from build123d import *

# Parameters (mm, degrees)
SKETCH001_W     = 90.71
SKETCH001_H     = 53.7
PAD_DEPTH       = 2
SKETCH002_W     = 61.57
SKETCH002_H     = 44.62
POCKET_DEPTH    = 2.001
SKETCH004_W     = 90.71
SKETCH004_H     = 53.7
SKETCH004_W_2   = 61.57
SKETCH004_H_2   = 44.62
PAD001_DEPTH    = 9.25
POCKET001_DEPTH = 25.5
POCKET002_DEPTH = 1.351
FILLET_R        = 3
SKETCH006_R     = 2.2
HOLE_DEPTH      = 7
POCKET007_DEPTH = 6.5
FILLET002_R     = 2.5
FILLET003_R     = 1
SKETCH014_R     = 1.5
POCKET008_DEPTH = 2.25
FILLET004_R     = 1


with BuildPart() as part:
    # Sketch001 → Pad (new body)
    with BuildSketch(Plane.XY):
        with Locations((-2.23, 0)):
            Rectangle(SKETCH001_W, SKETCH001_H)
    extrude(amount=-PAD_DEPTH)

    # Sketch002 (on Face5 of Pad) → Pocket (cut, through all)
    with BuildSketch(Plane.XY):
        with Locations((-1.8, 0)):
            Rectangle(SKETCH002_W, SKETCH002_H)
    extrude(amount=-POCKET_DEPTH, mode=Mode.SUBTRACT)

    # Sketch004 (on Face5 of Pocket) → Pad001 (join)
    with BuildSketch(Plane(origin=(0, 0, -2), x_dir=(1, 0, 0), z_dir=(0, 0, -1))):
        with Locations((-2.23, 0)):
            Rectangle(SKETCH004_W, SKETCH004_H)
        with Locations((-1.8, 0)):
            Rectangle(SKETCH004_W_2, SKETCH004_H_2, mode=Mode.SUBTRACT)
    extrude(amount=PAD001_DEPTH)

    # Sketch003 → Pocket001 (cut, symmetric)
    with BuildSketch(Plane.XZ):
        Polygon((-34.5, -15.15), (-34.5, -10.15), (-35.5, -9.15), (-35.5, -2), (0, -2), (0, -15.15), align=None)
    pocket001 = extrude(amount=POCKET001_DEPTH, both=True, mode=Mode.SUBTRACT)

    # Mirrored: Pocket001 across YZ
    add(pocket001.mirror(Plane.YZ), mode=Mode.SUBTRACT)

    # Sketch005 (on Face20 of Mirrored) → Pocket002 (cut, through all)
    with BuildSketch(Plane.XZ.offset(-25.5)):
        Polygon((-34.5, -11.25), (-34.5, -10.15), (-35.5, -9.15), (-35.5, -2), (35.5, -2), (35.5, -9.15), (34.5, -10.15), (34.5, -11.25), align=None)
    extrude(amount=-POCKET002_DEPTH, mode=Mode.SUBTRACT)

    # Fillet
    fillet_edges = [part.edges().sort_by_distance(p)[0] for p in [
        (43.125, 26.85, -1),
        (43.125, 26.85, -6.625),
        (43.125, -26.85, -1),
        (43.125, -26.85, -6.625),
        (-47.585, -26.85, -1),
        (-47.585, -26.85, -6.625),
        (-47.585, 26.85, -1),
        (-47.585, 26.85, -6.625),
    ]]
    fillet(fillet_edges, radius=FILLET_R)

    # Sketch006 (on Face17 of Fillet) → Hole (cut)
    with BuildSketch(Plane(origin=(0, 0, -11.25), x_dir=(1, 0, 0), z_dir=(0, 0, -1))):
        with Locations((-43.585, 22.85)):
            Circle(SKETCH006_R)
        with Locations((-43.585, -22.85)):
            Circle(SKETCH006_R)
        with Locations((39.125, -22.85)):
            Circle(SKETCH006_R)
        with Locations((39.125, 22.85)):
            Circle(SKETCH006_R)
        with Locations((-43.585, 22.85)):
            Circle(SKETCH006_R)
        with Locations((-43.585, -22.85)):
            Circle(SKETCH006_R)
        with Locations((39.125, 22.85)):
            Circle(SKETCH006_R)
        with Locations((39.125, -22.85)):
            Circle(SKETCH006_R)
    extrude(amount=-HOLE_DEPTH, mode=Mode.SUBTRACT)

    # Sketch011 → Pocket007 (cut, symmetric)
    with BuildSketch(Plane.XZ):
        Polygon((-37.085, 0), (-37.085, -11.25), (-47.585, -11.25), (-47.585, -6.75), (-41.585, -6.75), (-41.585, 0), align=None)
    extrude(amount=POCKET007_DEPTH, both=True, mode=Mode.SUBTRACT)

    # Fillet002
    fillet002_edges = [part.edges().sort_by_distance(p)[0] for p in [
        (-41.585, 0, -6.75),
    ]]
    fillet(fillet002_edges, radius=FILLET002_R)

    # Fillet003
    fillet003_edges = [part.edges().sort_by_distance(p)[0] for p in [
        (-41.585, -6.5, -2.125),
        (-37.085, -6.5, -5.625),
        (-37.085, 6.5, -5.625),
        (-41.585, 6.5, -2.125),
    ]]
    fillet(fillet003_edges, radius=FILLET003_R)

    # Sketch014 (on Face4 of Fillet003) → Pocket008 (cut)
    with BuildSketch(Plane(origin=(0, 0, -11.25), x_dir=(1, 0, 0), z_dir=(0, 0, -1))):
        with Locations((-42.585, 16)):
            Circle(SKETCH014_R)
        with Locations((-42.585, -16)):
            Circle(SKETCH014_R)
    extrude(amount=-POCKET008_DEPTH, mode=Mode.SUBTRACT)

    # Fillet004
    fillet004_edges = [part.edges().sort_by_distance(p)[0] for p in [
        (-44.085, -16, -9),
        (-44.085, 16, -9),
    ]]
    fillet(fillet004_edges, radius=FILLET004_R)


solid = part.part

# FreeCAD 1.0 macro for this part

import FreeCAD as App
import Part
import Sketcher
Q = App.Units.Quantity


def edges_at(feature, points):
    """Names of the edges that pass closest to the given points."""
    edges = feature.Shape.Edges
    near = lambda p: min(range(len(edges)), key=lambda i: edges[i].distToShape(Part.Vertex(*p))[0])
    return sorted({f"Edge{near(p) + 1}" for p in points})

doc = App.newDocument("Part")
body = doc.addObject("PartDesign::Body", "Body")

sketch1 = body.newObject("Sketcher::SketchObject", "Sketch")
sketch1.AttachmentSupport = (doc.getObject("XY_Plane"), [""])
sketch1.MapMode = "FlatFace"
sketch1.addGeometry([
    Part.LineSegment(App.Vector(-48, 27, 0), App.Vector(-48, -27, 0)),
    Part.LineSegment(App.Vector(-48, -27, 0), App.Vector(43, -27, 0)),
    Part.LineSegment(App.Vector(43, -27, 0), App.Vector(43, 27, 0)),
    Part.LineSegment(App.Vector(43, 27, 0), App.Vector(-48, 27, 0)),
], False)
sketch1.addConstraint([
    Sketcher.Constraint("Coincident", 0, 2, 1, 1),
    Sketcher.Constraint("Coincident", 1, 2, 2, 1),
    Sketcher.Constraint("Coincident", 2, 2, 3, 1),
    Sketcher.Constraint("Coincident", 3, 2, 0, 1),
    Sketcher.Constraint("Vertical", 0),
    Sketcher.Constraint("Horizontal", 1),
    Sketcher.Constraint("Vertical", 2),
    Sketcher.Constraint("Horizontal", 3),
    Sketcher.Constraint("DistanceY", 0, 2, 0, 1, Q("53.7 mm")),
    Sketcher.Constraint("DistanceX", 1, 1, 1, 2, Q("90.71 mm")),
    Sketcher.Constraint("DistanceY", 0, 2, -1, 1, Q("26.85 mm")),
    Sketcher.Constraint("DistanceX", 0, 2, -1, 1, Q("47.585 mm")),
])
pad1 = body.newObject("PartDesign::Pad", "Pad")
pad1.Profile = sketch1
pad1.Length = 2
pad1.Reversed = True

sketch2 = body.newObject("Sketcher::SketchObject", "Sketch001")
sketch2.AttachmentSupport = (doc.getObject("XY_Plane"), [""])
sketch2.MapMode = "FlatFace"
sketch2.addGeometry([
    Part.LineSegment(App.Vector(-33, 22, 0), App.Vector(-33, -22, 0)),
    Part.LineSegment(App.Vector(-33, -22, 0), App.Vector(29, -22, 0)),
    Part.LineSegment(App.Vector(29, -22, 0), App.Vector(29, 22, 0)),
    Part.LineSegment(App.Vector(29, 22, 0), App.Vector(-33, 22, 0)),
], False)
sketch2.addConstraint([
    Sketcher.Constraint("Coincident", 0, 2, 1, 1),
    Sketcher.Constraint("Coincident", 1, 2, 2, 1),
    Sketcher.Constraint("Coincident", 2, 2, 3, 1),
    Sketcher.Constraint("Coincident", 3, 2, 0, 1),
    Sketcher.Constraint("Vertical", 0),
    Sketcher.Constraint("Horizontal", 1),
    Sketcher.Constraint("Vertical", 2),
    Sketcher.Constraint("Horizontal", 3),
    Sketcher.Constraint("DistanceX", 1, 1, 1, 2, Q("61.57 mm")),
    Sketcher.Constraint("DistanceY", 0, 2, 0, 1, Q("44.62 mm")),
    Sketcher.Constraint("DistanceY", 0, 2, -1, 1, Q("22.31 mm")),
    Sketcher.Constraint("DistanceX", 0, 2, -1, 1, Q("32.585 mm")),
])
pocket1 = body.newObject("PartDesign::Pocket", "Pocket")
pocket1.Profile = sketch2
pocket1.Type = "ThroughAll"

sketch3 = body.newObject("Sketcher::SketchObject", "Sketch002")
sketch3.AttachmentSupport = (doc.getObject("XY_Plane"), [""])
sketch3.MapMode = "FlatFace"
sketch3.AttachmentOffset = App.Placement(App.Vector(0, 0, -2), App.Rotation())
sketch3.addGeometry([
    Part.LineSegment(App.Vector(-48, -27, 0), App.Vector(-48, 27, 0)),
    Part.LineSegment(App.Vector(-48, 27, 0), App.Vector(43, 27, 0)),
    Part.LineSegment(App.Vector(43, 27, 0), App.Vector(43, -27, 0)),
    Part.LineSegment(App.Vector(43, -27, 0), App.Vector(-48, -27, 0)),
    Part.LineSegment(App.Vector(29, 22, 0), App.Vector(-33, 22, 0)),
    Part.LineSegment(App.Vector(-33, 22, 0), App.Vector(-33, -22, 0)),
    Part.LineSegment(App.Vector(-33, -22, 0), App.Vector(29, -22, 0)),
    Part.LineSegment(App.Vector(29, -22, 0), App.Vector(29, 22, 0)),
], False)
sketch3.addConstraint([
    Sketcher.Constraint("Coincident", 0, 2, 1, 1),
    Sketcher.Constraint("Coincident", 1, 2, 2, 1),
    Sketcher.Constraint("Coincident", 2, 2, 3, 1),
    Sketcher.Constraint("Coincident", 3, 2, 0, 1),
    Sketcher.Constraint("Coincident", 4, 2, 5, 1),
    Sketcher.Constraint("Coincident", 5, 2, 6, 1),
    Sketcher.Constraint("Coincident", 6, 2, 7, 1),
    Sketcher.Constraint("Coincident", 7, 2, 4, 1),
    Sketcher.Constraint("Vertical", 0),
    Sketcher.Constraint("Horizontal", 1),
    Sketcher.Constraint("Vertical", 2),
    Sketcher.Constraint("Horizontal", 3),
    Sketcher.Constraint("Horizontal", 4),
    Sketcher.Constraint("Vertical", 5),
    Sketcher.Constraint("Horizontal", 6),
    Sketcher.Constraint("Vertical", 7),
    Sketcher.Constraint("DistanceY", 0, 1, 0, 2, Q("53.7 mm")),
    Sketcher.Constraint("DistanceX", 0, 2, 4, 2, Q("15 mm")),
    Sketcher.Constraint("DistanceX", 1, 1, 1, 2, Q("90.71 mm")),
    Sketcher.Constraint("DistanceX", 4, 2, 4, 1, Q("61.57 mm")),
    Sketcher.Constraint("DistanceY", 5, 2, 5, 1, Q("44.62 mm")),
    Sketcher.Constraint("DistanceY", -1, 1, 0, 2, Q("26.85 mm")),
    Sketcher.Constraint("DistanceY", -1, 1, 4, 2, Q("22.31 mm")),
    Sketcher.Constraint("DistanceX", 0, 2, -1, 1, Q("47.585 mm")),
])
pad2 = body.newObject("PartDesign::Pad", "Pad001")
pad2.Profile = sketch3
pad2.Length = 9.25
pad2.Reversed = True

sketch4 = body.newObject("Sketcher::SketchObject", "Sketch003")
sketch4.AttachmentSupport = (doc.getObject("XZ_Plane"), [""])
sketch4.MapMode = "FlatFace"
sketch4.addGeometry([
    Part.LineSegment(App.Vector(-34.5, -10.2, 0), App.Vector(-34.5, -15.2, 0)),
    Part.LineSegment(App.Vector(-34.5, -15.2, 0), App.Vector(0, -15.2, 0)),
    Part.LineSegment(App.Vector(0, -15.2, 0), App.Vector(0, -2, 0)),
    Part.LineSegment(App.Vector(0, -2, 0), App.Vector(-35.5, -2, 0)),
    Part.LineSegment(App.Vector(-35.5, -2, 0), App.Vector(-35.5, -9.2, 0)),
    Part.LineSegment(App.Vector(-35.5, -9.2, 0), App.Vector(-34.5, -10.2, 0)),
], False)
sketch4.addConstraint([
    Sketcher.Constraint("Coincident", 0, 2, 1, 1),
    Sketcher.Constraint("Coincident", 1, 2, 2, 1),
    Sketcher.Constraint("Coincident", 2, 2, 3, 1),
    Sketcher.Constraint("Coincident", 3, 2, 4, 1),
    Sketcher.Constraint("Coincident", 4, 2, 5, 1),
    Sketcher.Constraint("Coincident", 5, 2, 0, 1),
    Sketcher.Constraint("Vertical", 0),
    Sketcher.Constraint("Horizontal", 1),
    Sketcher.Constraint("Vertical", 2),
    Sketcher.Constraint("Horizontal", 3),
    Sketcher.Constraint("Vertical", 4),
    Sketcher.Constraint("PointOnObject", 1, 2, -2),
    Sketcher.Constraint("DistanceY", 0, 2, 0, 1, Q("5 mm")),
    Sketcher.Constraint("Angle", 5, Q("-45 deg")),
    Sketcher.Constraint("DistanceX", 1, 1, 1, 2, Q("34.5 mm")),
    Sketcher.Constraint("DistanceX", 3, 2, 3, 1, Q("35.5 mm")),
    Sketcher.Constraint("DistanceY", 2, 2, -1, 1, Q("2 mm")),
    Sketcher.Constraint("DistanceY", 2, 1, 2, 2, Q("13.15 mm")),
])
pocket2 = body.newObject("PartDesign::Pocket", "Pocket001")
pocket2.Profile = sketch4
pocket2.Length = 51
pocket2.Midplane = True
doc.recompute()

mirrored = body.newObject("PartDesign::Mirrored", "Mirrored")
mirrored.Originals = [pocket2]
mirrored.MirrorPlane = (doc.getObject("YZ_Plane"), [""])
body.Tip = mirrored

sketch5 = body.newObject("Sketcher::SketchObject", "Sketch004")
sketch5.AttachmentSupport = (doc.getObject("XZ_Plane"), [""])
sketch5.MapMode = "FlatFace"
sketch5.AttachmentOffset = App.Placement(App.Vector(0, 0, -25.5), App.Rotation())
sketch5.addGeometry([
    Part.LineSegment(App.Vector(-34.5, -10.2, 0), App.Vector(-34.5, -11.2, 0)),
    Part.LineSegment(App.Vector(-34.5, -11.2, 0), App.Vector(34.5, -11.2, 0)),
    Part.LineSegment(App.Vector(34.5, -11.2, 0), App.Vector(34.5, -10.2, 0)),
    Part.LineSegment(App.Vector(34.5, -10.2, 0), App.Vector(35.5, -9.2, 0)),
    Part.LineSegment(App.Vector(35.5, -9.2, 0), App.Vector(35.5, -2, 0)),
    Part.LineSegment(App.Vector(35.5, -2, 0), App.Vector(-35.5, -2, 0)),
    Part.LineSegment(App.Vector(-35.5, -2, 0), App.Vector(-35.5, -9.2, 0)),
    Part.LineSegment(App.Vector(-35.5, -9.2, 0), App.Vector(-34.5, -10.2, 0)),
], False)
sketch5.addConstraint([
    Sketcher.Constraint("Coincident", 0, 2, 1, 1),
    Sketcher.Constraint("Coincident", 1, 2, 2, 1),
    Sketcher.Constraint("Coincident", 2, 2, 3, 1),
    Sketcher.Constraint("Coincident", 3, 2, 4, 1),
    Sketcher.Constraint("Coincident", 4, 2, 5, 1),
    Sketcher.Constraint("Coincident", 5, 2, 6, 1),
    Sketcher.Constraint("Coincident", 6, 2, 7, 1),
    Sketcher.Constraint("Coincident", 7, 2, 0, 1),
    Sketcher.Constraint("Vertical", 0),
    Sketcher.Constraint("Horizontal", 1),
    Sketcher.Constraint("Vertical", 2),
    Sketcher.Constraint("Vertical", 4),
    Sketcher.Constraint("Horizontal", 5),
    Sketcher.Constraint("Vertical", 6),
    Sketcher.Constraint("Symmetric", 3, 2, 6, 2, -2),
    Sketcher.Constraint("Symmetric", 2, 2, 7, 2, -2),
    Sketcher.Constraint("Perpendicular", 3, 7),
    Sketcher.Constraint("DistanceX", 1, 1, 1, 2, Q("69 mm")),
    Sketcher.Constraint("DistanceX", 5, 2, 5, 1, Q("71 mm")),
    Sketcher.Constraint("DistanceY", 0, 2, 0, 1, Q("1.1 mm")),
    Sketcher.Constraint("DistanceY", 4, 2, -1, 1, Q("2 mm")),
    Sketcher.Constraint("DistanceY", 4, 1, 4, 2, Q("7.15 mm")),
])
pocket3 = body.newObject("PartDesign::Pocket", "Pocket002")
pocket3.Profile = sketch5
pocket3.Type = "ThroughAll"
doc.recompute()

fillet = body.newObject("PartDesign::Fillet", "Fillet")
fillet.Base = (pocket3, edges_at(pocket3, [
    (43.125, 26.85, -5.625),
    (43.125, 26.85, -5.625),
    (43.125, -26.85, -5.625),
    (43.125, -26.85, -5.625),
    (-47.585, -26.85, -5.625),
    (-47.585, -26.85, -5.625),
    (-47.585, 26.85, -5.625),
    (-47.585, 26.85, -5.625),
]))
fillet.Radius = 3

sketch6 = body.newObject("Sketcher::SketchObject", "Sketch005")
sketch6.AttachmentSupport = (doc.getObject("XY_Plane"), [""])
sketch6.MapMode = "FlatFace"
sketch6.AttachmentOffset = App.Placement(App.Vector(0, 0, -11.25), App.Rotation())
sketch6.addGeometry([
    Part.Circle(App.Vector(-43.6, -22.9, 0), App.Vector(0, 0, 1), 2.2),
    Part.Circle(App.Vector(-43.6, 22.9, 0), App.Vector(0, 0, 1), 2.2),
    Part.Circle(App.Vector(39.1, 22.9, 0), App.Vector(0, 0, 1), 2.2),
    Part.Circle(App.Vector(39.1, -22.9, 0), App.Vector(0, 0, 1), 2.2),
], False)
sketch6.addConstraint([
    Sketcher.Constraint("Equal", 0, 1),
    Sketcher.Constraint("Equal", 1, 2),
    Sketcher.Constraint("Equal", 2, 3),
    Sketcher.Constraint("Symmetric", 0, 3, 1, 3, -1),
    Sketcher.Constraint("Symmetric", 2, 3, 3, 3, -1),
    Sketcher.Constraint("Horizontal", 1, 3, 2, 3),
    Sketcher.Constraint("Diameter", 0, Q("4.4 mm")),
    Sketcher.Constraint("DistanceY", 0, 3, 1, 3, Q("45.7 mm")),
    Sketcher.Constraint("DistanceX", 1, 3, 2, 3, Q("82.71 mm")),
    Sketcher.Constraint("DistanceX", 0, 3, -1, 1, Q("43.585 mm")),
])
pocket4 = body.newObject("PartDesign::Pocket", "Pocket003")
pocket4.Profile = sketch6
pocket4.Length = 7
pocket4.Reversed = True

sketch7 = body.newObject("Sketcher::SketchObject", "Sketch006")
sketch7.AttachmentSupport = (doc.getObject("XZ_Plane"), [""])
sketch7.MapMode = "FlatFace"
sketch7.addGeometry([
    Part.LineSegment(App.Vector(-37.1, -11.2, 0), App.Vector(-37.1, 0, 0)),
    Part.LineSegment(App.Vector(-37.1, 0, 0), App.Vector(-41.6, 0, 0)),
    Part.LineSegment(App.Vector(-41.6, 0, 0), App.Vector(-41.6, -6.8, 0)),
    Part.LineSegment(App.Vector(-41.6, -6.8, 0), App.Vector(-47.6, -6.8, 0)),
    Part.LineSegment(App.Vector(-47.6, -6.8, 0), App.Vector(-47.6, -11.2, 0)),
    Part.LineSegment(App.Vector(-47.6, -11.2, 0), App.Vector(-37.1, -11.2, 0)),
], False)
sketch7.addConstraint([
    Sketcher.Constraint("Coincident", 0, 2, 1, 1),
    Sketcher.Constraint("Coincident", 1, 2, 2, 1),
    Sketcher.Constraint("Coincident", 2, 2, 3, 1),
    Sketcher.Constraint("Coincident", 3, 2, 4, 1),
    Sketcher.Constraint("Coincident", 4, 2, 5, 1),
    Sketcher.Constraint("Coincident", 5, 2, 0, 1),
    Sketcher.Constraint("Vertical", 0),
    Sketcher.Constraint("Horizontal", 1),
    Sketcher.Constraint("Vertical", 2),
    Sketcher.Constraint("Horizontal", 3),
    Sketcher.Constraint("Vertical", 4),
    Sketcher.Constraint("Horizontal", 5),
    Sketcher.Constraint("PointOnObject", 0, 2, -1),
    Sketcher.Constraint("Equal", 1, 4),
    Sketcher.Constraint("DistanceX", 3, 2, 3, 1, Q("6 mm")),
    Sketcher.Constraint("DistanceX", 1, 2, 1, 1, Q("4.5 mm")),
    Sketcher.Constraint("DistanceY", 0, 1, 0, 2, Q("11.25 mm")),
    Sketcher.Constraint("DistanceX", 0, 2, -1, 1, Q("37.085 mm")),
])
pocket5 = body.newObject("PartDesign::Pocket", "Pocket004")
pocket5.Profile = sketch7
pocket5.Length = 13
pocket5.Midplane = True
doc.recompute()

fillet2 = body.newObject("PartDesign::Fillet", "Fillet001")
fillet2.Base = (pocket5, edges_at(pocket5, [(-41.585, 0, -6.75)]))
fillet2.Radius = 2.5
doc.recompute()

fillet3 = body.newObject("PartDesign::Fillet", "Fillet002")
fillet3.Base = (fillet2, edges_at(fillet2, [
    (-41.585, -6.5, -2.125),
    (-37.085, -6.5, -5.625),
    (-37.085, 6.5, -5.625),
    (-41.585, 6.5, -2.125),
]))
fillet3.Radius = 1

sketch8 = body.newObject("Sketcher::SketchObject", "Sketch007")
sketch8.AttachmentSupport = (doc.getObject("XY_Plane"), [""])
sketch8.MapMode = "FlatFace"
sketch8.AttachmentOffset = App.Placement(App.Vector(0, 0, -11.25), App.Rotation())
sketch8.addGeometry([
    Part.Circle(App.Vector(-42.6, -16, 0), App.Vector(0, 0, 1), 1.5),
    Part.Circle(App.Vector(-42.6, 16, 0), App.Vector(0, 0, 1), 1.5),
], False)
sketch8.addConstraint([
    Sketcher.Constraint("Equal", 0, 1),
    Sketcher.Constraint("Symmetric", 0, 3, 1, 3, -1),
    Sketcher.Constraint("Diameter", 0, Q("3 mm")),
    Sketcher.Constraint("DistanceY", 0, 3, -1, 1, Q("16 mm")),
    Sketcher.Constraint("DistanceX", 0, 3, -1, 1, Q("42.585 mm")),
])
pocket6 = body.newObject("PartDesign::Pocket", "Pocket005")
pocket6.Profile = sketch8
pocket6.Length = 2.25
pocket6.Reversed = True
doc.recompute()

fillet4 = body.newObject("PartDesign::Fillet", "Fillet003")
fillet4.Base = (pocket6, edges_at(pocket6, [(-44.085, -16, -9), (-44.085, 16, -9)]))
fillet4.Radius = 1

doc.recompute()
